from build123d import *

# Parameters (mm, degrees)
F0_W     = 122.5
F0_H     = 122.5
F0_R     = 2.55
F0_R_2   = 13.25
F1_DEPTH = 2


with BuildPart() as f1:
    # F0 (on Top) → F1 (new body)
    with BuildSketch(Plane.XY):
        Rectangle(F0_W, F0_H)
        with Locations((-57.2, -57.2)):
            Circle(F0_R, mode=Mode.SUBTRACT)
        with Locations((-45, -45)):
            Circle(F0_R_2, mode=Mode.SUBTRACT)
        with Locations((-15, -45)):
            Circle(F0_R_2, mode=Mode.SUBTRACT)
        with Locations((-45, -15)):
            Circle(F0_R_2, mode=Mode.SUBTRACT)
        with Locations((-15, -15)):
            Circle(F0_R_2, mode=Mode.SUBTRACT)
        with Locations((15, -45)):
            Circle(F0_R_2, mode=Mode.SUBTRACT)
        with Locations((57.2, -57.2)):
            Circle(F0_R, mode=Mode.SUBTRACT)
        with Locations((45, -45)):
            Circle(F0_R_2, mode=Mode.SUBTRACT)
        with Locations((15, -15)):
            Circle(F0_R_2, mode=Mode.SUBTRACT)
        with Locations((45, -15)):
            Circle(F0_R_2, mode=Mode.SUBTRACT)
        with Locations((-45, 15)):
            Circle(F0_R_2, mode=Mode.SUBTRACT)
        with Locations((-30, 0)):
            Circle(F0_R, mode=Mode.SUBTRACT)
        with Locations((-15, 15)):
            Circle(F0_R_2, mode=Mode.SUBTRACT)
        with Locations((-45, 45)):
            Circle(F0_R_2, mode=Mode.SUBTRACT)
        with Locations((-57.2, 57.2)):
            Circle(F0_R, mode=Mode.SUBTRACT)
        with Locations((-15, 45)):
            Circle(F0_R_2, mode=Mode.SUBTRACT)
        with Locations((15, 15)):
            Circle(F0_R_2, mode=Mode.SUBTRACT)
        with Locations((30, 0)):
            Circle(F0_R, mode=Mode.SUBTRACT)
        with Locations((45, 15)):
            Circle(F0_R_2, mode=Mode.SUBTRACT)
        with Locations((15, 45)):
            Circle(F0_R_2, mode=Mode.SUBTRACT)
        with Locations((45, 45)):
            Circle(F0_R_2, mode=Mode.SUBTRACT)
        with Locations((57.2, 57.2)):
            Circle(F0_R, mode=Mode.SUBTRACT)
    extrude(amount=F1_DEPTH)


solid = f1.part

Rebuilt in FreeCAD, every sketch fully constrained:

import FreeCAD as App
import Part
import Sketcher

V = App.Vector
Q = App.Units.Quantity

doc = App.newDocument("Part")
body = doc.addObject("PartDesign::Body", "Body")

# Sketch on XY plane
sketch1 = doc.addObject("Sketcher::SketchObject", "Sketch")
body.addObject(sketch1)
sketch1.AttachmentSupport = (doc.XY_Plane, [""])
sketch1.MapMode = "FlatFace"
sketch1.addGeometry([
    Part.LineSegment(V(-61.2, 61.2, 0), V(-61.2, -61.2, 0)),  # 0
    Part.LineSegment(V(-61.2, -61.2, 0), V(61.2, -61.2, 0)),  # 1
    Part.LineSegment(V(61.2, -61.2, 0), V(61.2, 61.2, 0)),  # 2
    Part.LineSegment(V(61.2, 61.2, 0), V(-61.2, 61.2, 0)),  # 3
    Part.Circle(V(-57.2, -57.2, 0), V(0, 0, 1), 2.5),  # 4
    Part.Circle(V(-45, -45, 0), V(0, 0, 1), 13.2),  # 5
    Part.Circle(V(-15, -45, 0), V(0, 0, 1), 13.2),  # 6
    Part.Circle(V(-45, -15, 0), V(0, 0, 1), 13.2),  # 7
    Part.Circle(V(-30, 0, 0), V(0, 0, 1), 2.5),  # 8
    Part.Circle(V(-15, -15, 0), V(0, 0, 1), 13.2),  # 9
    Part.Circle(V(15, -45, 0), V(0, 0, 1), 13.2),  # 10
    Part.Circle(V(57.2, -57.2, 0), V(0, 0, 1), 2.5),  # 11
    Part.Circle(V(45, -45, 0), V(0, 0, 1), 13.2),  # 12
    Part.Circle(V(15, -15, 0), V(0, 0, 1), 13.2),  # 13
    Part.Circle(V(45, -15, 0), V(0, 0, 1), 13.2),  # 14
    Part.Circle(V(30, 0, 0), V(0, 0, 1), 2.5),  # 15
    Part.Circle(V(-45, 15, 0), V(0, 0, 1), 13.2),  # 16
    Part.Circle(V(-15, 15, 0), V(0, 0, 1), 13.2),  # 17
    Part.Circle(V(-45, 45, 0), V(0, 0, 1), 13.2),  # 18
    Part.Circle(V(-57.2, 57.2, 0), V(0, 0, 1), 2.5),  # 19
    Part.Circle(V(-15, 45, 0), V(0, 0, 1), 13.2),  # 20
    Part.Circle(V(15, 15, 0), V(0, 0, 1), 13.2),  # 21
    Part.Circle(V(45, 15, 0), V(0, 0, 1), 13.2),  # 22
    Part.Circle(V(15, 45, 0), V(0, 0, 1), 13.2),  # 23
    Part.Circle(V(45, 45, 0), V(0, 0, 1), 13.2),  # 24
    Part.Circle(V(57.2, 57.2, 0), V(0, 0, 1), 2.5),  # 25
], False)
sketch1.addConstraint([
    Sketcher.Constraint("Coincident", 0, 2, 1, 1),
    Sketcher.Constraint("Coincident", 1, 2, 2, 1),
    Sketcher.Constraint("Coincident", 2, 2, 3, 1),
    Sketcher.Constraint("Coincident", 3, 2, 0, 1),
    Sketcher.Constraint("Vertical", 0),
    Sketcher.Constraint("Horizontal", 1),
    Sketcher.Constraint("Vertical", 2),
    Sketcher.Constraint("Horizontal", 3),
    Sketcher.Constraint("Equal", 5, 6),
    Sketcher.Constraint("Equal", 6, 7),
    Sketcher.Constraint("Equal", 4, 8),
    Sketcher.Constraint("Equal", 7, 9),
    Sketcher.Constraint("Equal", 9, 10),
    Sketcher.Constraint("Equal", 8, 11),
    Sketcher.Constraint("Equal", 10, 12),
    Sketcher.Constraint("Equal", 12, 13),
    Sketcher.Constraint("Equal", 13, 14),
    Sketcher.Constraint("Equal", 11, 15),
    Sketcher.Constraint("Equal", 14, 16),
    Sketcher.Constraint("Equal", 16, 17),
    Sketcher.Constraint("Equal", 17, 18),
    Sketcher.Constraint("Equal", 15, 19),
    Sketcher.Constraint("Equal", 18, 20),
    Sketcher.Constraint("Equal", 20, 21),
    Sketcher.Constraint("Equal", 21, 22),
    Sketcher.Constraint("Equal", 22, 23),
    Sketcher.Constraint("Equal", 23, 24),
    Sketcher.Constraint("Equal", 19, 25),
    Sketcher.Constraint("Symmetric", 8, 3, 15, 3, -1, 1),
    Sketcher.Constraint("Symmetric", 14, 3, 16, 3, -1, 1),
    Sketcher.Constraint("Symmetric", 13, 3, 17, 3, -1, 1),
    Sketcher.Constraint("Symmetric", 12, 3, 18, 3, -1, 1),
    Sketcher.Constraint("Symmetric", 11, 3, 19, 3, -1, 1),
    Sketcher.Constraint("Symmetric", 10, 3, 20, 3, -1, 1),
    Sketcher.Constraint("Symmetric", 9, 3, 21, 3, -1, 1),
    Sketcher.Constraint("Symmetric", 7, 3, 22, 3, -1, 1),
    Sketcher.Constraint("Symmetric", 6, 3, 23, 3, -1, 1),
    Sketcher.Constraint("Symmetric", 5, 3, 24, 3, -1, 1),
    Sketcher.Constraint("Symmetric", 4, 3, 25, 3, -1, 1),
    Sketcher.Constraint("Symmetric", 0, 2, 2, 2, -1, 1),
    Sketcher.Constraint("Symmetric", 6, 3, 10, 3, -2),
    Sketcher.Constraint("Symmetric", 4, 3, 11, 3, -2),
    Sketcher.Constraint("Symmetric", 5, 3, 12, 3, -2),
    Sketcher.Constraint("Symmetric", 9, 3, 13, 3, -2),
    Sketcher.Constraint("Symmetric", 7, 3, 14, 3, -2),
    Sketcher.Constraint("PointOnObject", 8, 3, -1),
    Sketcher.Constraint("Horizontal", 5, 3, 6, 3),
    Sketcher.Constraint("Horizontal", 7, 3, 9, 3),
    Sketcher.Constraint("Vertical", 5, 3, 7, 3),
    Sketcher.Constraint("Vertical", 6, 3, 9, 3),
    Sketcher.Constraint("Equal", 3, 0),
    Sketcher.Constraint("Diameter", 4, Q("5.1 mm")),
    Sketcher.Constraint("Diameter", 5, Q("26.5 mm")),
    Sketcher.Constraint("DistanceX", 1, 1, 1, 2, Q("122.5 mm")),
    Sketcher.Constraint("DistanceX", 5, 3, -1, 1, Q("45 mm")),
    Sketcher.Constraint("DistanceY", 5, 3, -1, 1, Q("45 mm")),
    Sketcher.Constraint("DistanceX", 6, 3, -1, 1, Q("15 mm")),
    Sketcher.Constraint("DistanceY", 7, 3, -1, 1, Q("15 mm")),
    Sketcher.Constraint("DistanceX", 8, 3, -1, 1, Q("30 mm")),
    Sketcher.Constraint("DistanceX", 4, 3, -1, 1, Q("57.2 mm")),
    Sketcher.Constraint("DistanceY", 4, 3, -1, 1, Q("57.2 mm")),
])
pad1 = doc.addObject("PartDesign::Pad", "Pad")
body.addObject(pad1)
pad1.Profile = sketch1
pad1.Length = 2

doc.recompute()
